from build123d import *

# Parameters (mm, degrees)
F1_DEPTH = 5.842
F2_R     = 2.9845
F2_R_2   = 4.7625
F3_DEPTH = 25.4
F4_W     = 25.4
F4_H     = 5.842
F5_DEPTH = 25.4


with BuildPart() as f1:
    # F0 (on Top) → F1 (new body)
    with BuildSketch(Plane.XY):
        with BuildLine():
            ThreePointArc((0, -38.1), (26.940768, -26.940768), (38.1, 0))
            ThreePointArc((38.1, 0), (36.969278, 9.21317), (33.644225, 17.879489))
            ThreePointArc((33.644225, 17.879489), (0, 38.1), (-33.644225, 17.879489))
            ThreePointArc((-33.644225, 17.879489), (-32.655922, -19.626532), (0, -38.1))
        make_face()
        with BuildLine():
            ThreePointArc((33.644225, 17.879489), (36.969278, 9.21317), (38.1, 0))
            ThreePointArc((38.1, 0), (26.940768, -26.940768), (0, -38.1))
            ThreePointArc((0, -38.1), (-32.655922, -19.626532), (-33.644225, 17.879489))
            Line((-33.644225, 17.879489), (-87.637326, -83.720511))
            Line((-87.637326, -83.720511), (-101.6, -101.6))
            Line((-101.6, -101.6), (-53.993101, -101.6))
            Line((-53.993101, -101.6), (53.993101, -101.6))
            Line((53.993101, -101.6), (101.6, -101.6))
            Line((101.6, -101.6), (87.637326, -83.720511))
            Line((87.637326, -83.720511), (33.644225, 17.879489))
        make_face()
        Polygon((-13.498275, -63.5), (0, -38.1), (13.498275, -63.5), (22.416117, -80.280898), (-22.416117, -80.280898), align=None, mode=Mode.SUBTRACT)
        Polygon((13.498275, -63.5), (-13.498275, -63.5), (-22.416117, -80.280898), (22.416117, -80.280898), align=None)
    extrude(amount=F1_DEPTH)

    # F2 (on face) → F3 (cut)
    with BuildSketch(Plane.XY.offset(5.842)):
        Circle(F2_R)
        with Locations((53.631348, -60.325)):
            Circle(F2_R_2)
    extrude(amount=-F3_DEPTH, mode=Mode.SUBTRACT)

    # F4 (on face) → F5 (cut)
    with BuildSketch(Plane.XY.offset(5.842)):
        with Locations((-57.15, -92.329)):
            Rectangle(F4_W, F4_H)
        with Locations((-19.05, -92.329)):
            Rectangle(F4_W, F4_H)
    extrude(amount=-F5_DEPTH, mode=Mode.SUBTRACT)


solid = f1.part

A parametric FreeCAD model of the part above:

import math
import FreeCAD as App
import Part
import Sketcher
from FreeCAD import Vector
Q = App.Units.Quantity

doc = App.newDocument("Part")
body = doc.addObject("PartDesign::Body", "Body")

sketch1 = body.newObject("Sketcher::SketchObject", "Sketch")
sketch1.AttachmentSupport = (doc.getObject("XY_Plane"), [""])
sketch1.MapMode = "FlatFace"
sketch1.addGeometry([
    Part.ArcOfCircle(Part.Circle(Vector(0, 0, 0), Vector(0, 0, 1), 38), math.radians(28), math.radians(152)),
    Part.LineSegment(Vector(-34, 18, 0), Vector(-88, -84, 0)),
    Part.LineSegment(Vector(-88, -84, 0), Vector(-102, -102, 0)),
    Part.LineSegment(Vector(-102, -102, 0), Vector(102, -102, 0)),
    Part.LineSegment(Vector(102, -102, 0), Vector(88, -84, 0)),
    Part.LineSegment(Vector(88, -84, 0), Vector(34, 18, 0)),
    Part.LineSegment(Vector(0, -38, 0), Vector(13, -64, 0)),
    Part.LineSegment(Vector(13, -64, 0), Vector(-13, -64, 0)),
    Part.LineSegment(Vector(-13, -64, 0), Vector(0, -38, 0)),
], False)
sketch1.addConstraint([
    Sketcher.Constraint("Tangent", 0, 2, 1, 1),
    Sketcher.Constraint("Coincident", 1, 2, 2, 1),
    Sketcher.Constraint("Coincident", 2, 2, 3, 1),
    Sketcher.Constraint("Coincident", 3, 2, 4, 1),
    Sketcher.Constraint("Coincident", 4, 2, 5, 1),
    Sketcher.Constraint("Tangent", 5, 2, 0, 1),
    Sketcher.Constraint("Coincident", 6, 2, 7, 1),
    Sketcher.Constraint("Coincident", 7, 2, 8, 1),
    Sketcher.Constraint("Coincident", 8, 2, 6, 1),
    Sketcher.Constraint("Horizontal", 3),
    Sketcher.Constraint("Horizontal", 7),
    Sketcher.Constraint("Coincident", 0, 3, -1, 1),
    Sketcher.Constraint("Symmetric", 1, 2, 4, 2, -2),
    Sketcher.Constraint("PointOnObject", 8, 2, -2),
    Sketcher.Constraint("Parallel", 5, 6),
    Sketcher.Constraint("Parallel", 1, 8),
    Sketcher.Constraint("Equal", 2, 4),
    Sketcher.Constraint("Radius", 0, Q("1.5 in")),
    Sketcher.Constraint("DistanceX", 3, 1, 3, 2, Q("8 in")),
    Sketcher.Constraint("DistanceY", 2, 2, -1, 1, Q("4 in")),
    Sketcher.Constraint("DistanceY", 1, 2, 0, 2, Q("4 in")),
    Sketcher.Constraint("DistanceY", 6, 2, 8, 2, Q("1 in")),
    Sketcher.Constraint("DistanceY", 6, 2, -1, 1, Q("2.5 in")),
    Sketcher.Constraint("DistanceX", 7, 2, 7, 1, 26.99655),
])
pad1 = body.newObject("PartDesign::Pad", "Pad")
pad1.Profile = sketch1
pad1.Length = Q("0.23 in")

sketch2 = body.newObject("Sketcher::SketchObject", "Sketch001")
sketch2.AttachmentSupport = (doc.getObject("XY_Plane"), [""])
sketch2.MapMode = "FlatFace"
sketch2.AttachmentOffset = App.Placement(Vector(0, 0, 0.23 * 25.4), App.Rotation())
sketch2.addGeometry([
    Part.Circle(Vector(0, 0, 0), Vector(0, 0, 1), 3),
    Part.Circle(Vector(53.6, -60.3, 0), Vector(0, 0, 1), 4.8),
], False)
sketch2.addConstraint([
    Sketcher.Constraint("Coincident", 0, 3, -1, 1),
    Sketcher.Constraint("Diameter", 0, Q("0.235 in")),
    Sketcher.Constraint("Diameter", 1, Q("0.375 in")),
    Sketcher.Constraint("DistanceY", 1, 3, -1, 1, Q("2.375 in")),
    Sketcher.Constraint("DistanceX", -1, 1, 1, 3, 53.631348),
])
pocket1 = body.newObject("PartDesign::Pocket", "Pocket")
pocket1.Profile = sketch2
pocket1.Length = Q("1 in")

sketch3 = body.newObject("Sketcher::SketchObject", "Sketch002")
sketch3.AttachmentSupport = (doc.getObject("XY_Plane"), [""])
sketch3.MapMode = "FlatFace"
sketch3.AttachmentOffset = App.Placement(Vector(0, 0, 0.23 * 25.4), App.Rotation())
sketch3.addGeometry([
    Part.LineSegment(Vector(-70, -89, 0), Vector(-70, -95, 0)),
    Part.LineSegment(Vector(-70, -95, 0), Vector(-44, -95, 0)),
    Part.LineSegment(Vector(-44, -95, 0), Vector(-44, -89, 0)),
    Part.LineSegment(Vector(-44, -89, 0), Vector(-70, -89, 0)),
    Part.LineSegment(Vector(-32, -89, 0), Vector(-32, -95, 0)),
    Part.LineSegment(Vector(-32, -95, 0), Vector(-6, -95, 0)),
    Part.LineSegment(Vector(-6, -95, 0), Vector(-6, -89, 0)),
    Part.LineSegment(Vector(-6, -89, 0), Vector(-32, -89, 0)),
], False)
sketch3.addConstraint([
    Sketcher.Constraint("Coincident", 0, 2, 1, 1),
    Sketcher.Constraint("Coincident", 1, 2, 2, 1),
    Sketcher.Constraint("Coincident", 2, 2, 3, 1),
    Sketcher.Constraint("Coincident", 3, 2, 0, 1),
    Sketcher.Constraint("Coincident", 4, 2, 5, 1),
    Sketcher.Constraint("Coincident", 5, 2, 6, 1),
    Sketcher.Constraint("Coincident", 6, 2, 7, 1),
    Sketcher.Constraint("Coincident", 7, 2, 4, 1),
    Sketcher.Constraint("Vertical", 0),
    Sketcher.Constraint("Horizontal", 1),
    Sketcher.Constraint("Vertical", 2),
    Sketcher.Constraint("Horizontal", 3),
    Sketcher.Constraint("Vertical", 4),
    Sketcher.Constraint("Horizontal", 5),
    Sketcher.Constraint("Vertical", 6),
    Sketcher.Constraint("Horizontal", 7),
    Sketcher.Constraint("Horizontal", 1, 2, 4, 2),
    Sketcher.Constraint("Horizontal", 3, 2, 6, 2),
    Sketcher.Constraint("Equal", 3, 5),
    Sketcher.Constraint("DistanceX", 1, 1, 1, 2, Q("1 in")),
    Sketcher.Constraint("DistanceY", 0, 2, 0, 1, Q("0.23 in")),
    Sketcher.Constraint("DistanceX", 1, 2, 4, 2, Q("0.5 in")),
    Sketcher.Constraint("DistanceX", 0, 2, -1, 1, Q("2.75 in")),
    Sketcher.Constraint("DistanceY", 0, 2, -1, 1, Q("3.75 in")),
])
pocket2 = body.newObject("PartDesign::Pocket", "Pocket001")
pocket2.Profile = sketch3
pocket2.Length = Q("1 in")

doc.recompute()
